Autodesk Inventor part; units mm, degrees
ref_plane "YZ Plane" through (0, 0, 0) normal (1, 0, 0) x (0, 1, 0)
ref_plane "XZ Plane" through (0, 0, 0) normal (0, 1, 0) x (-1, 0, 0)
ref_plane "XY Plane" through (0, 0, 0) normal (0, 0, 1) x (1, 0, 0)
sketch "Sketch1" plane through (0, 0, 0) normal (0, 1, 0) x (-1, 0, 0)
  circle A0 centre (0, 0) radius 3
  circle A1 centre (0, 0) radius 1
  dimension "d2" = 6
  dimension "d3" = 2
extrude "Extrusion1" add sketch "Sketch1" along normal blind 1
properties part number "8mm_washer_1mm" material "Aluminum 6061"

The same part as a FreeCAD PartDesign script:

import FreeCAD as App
import Part
import Sketcher
from FreeCAD import Vector

doc = App.newDocument("Part")
body = doc.addObject("PartDesign::Body", "Body")

sketch1 = body.newObject("Sketcher::SketchObject", "Sketch")
sketch1.AttachmentSupport = (doc.getObject("XZ_Plane"), [""])
sketch1.MapMode = "FlatFace"
sketch1.addGeometry(Part.Circle(Vector(0, 0, 0), Vector(0, 0, 1), 3), False)
sketch1.addGeometry(Part.Circle(Vector(0, 0, 0), Vector(0, 0, 1), 1), False)
sketch1.addConstraint(Sketcher.Constraint("Coincident", 0, 3, -1, 1))
sketch1.addConstraint(Sketcher.Constraint("Coincident", 1, 3, -1, 1))
sketch1.addConstraint(Sketcher.Constraint("Diameter", 0, 6.0))
sketch1.addConstraint(Sketcher.Constraint("Diameter", 1, 2.0))
pad1 = body.newObject("PartDesign::Pad", "Pad")
pad1.Profile = sketch1
pad1.Length = 1
pad1.Reversed = True

doc.recompute()
